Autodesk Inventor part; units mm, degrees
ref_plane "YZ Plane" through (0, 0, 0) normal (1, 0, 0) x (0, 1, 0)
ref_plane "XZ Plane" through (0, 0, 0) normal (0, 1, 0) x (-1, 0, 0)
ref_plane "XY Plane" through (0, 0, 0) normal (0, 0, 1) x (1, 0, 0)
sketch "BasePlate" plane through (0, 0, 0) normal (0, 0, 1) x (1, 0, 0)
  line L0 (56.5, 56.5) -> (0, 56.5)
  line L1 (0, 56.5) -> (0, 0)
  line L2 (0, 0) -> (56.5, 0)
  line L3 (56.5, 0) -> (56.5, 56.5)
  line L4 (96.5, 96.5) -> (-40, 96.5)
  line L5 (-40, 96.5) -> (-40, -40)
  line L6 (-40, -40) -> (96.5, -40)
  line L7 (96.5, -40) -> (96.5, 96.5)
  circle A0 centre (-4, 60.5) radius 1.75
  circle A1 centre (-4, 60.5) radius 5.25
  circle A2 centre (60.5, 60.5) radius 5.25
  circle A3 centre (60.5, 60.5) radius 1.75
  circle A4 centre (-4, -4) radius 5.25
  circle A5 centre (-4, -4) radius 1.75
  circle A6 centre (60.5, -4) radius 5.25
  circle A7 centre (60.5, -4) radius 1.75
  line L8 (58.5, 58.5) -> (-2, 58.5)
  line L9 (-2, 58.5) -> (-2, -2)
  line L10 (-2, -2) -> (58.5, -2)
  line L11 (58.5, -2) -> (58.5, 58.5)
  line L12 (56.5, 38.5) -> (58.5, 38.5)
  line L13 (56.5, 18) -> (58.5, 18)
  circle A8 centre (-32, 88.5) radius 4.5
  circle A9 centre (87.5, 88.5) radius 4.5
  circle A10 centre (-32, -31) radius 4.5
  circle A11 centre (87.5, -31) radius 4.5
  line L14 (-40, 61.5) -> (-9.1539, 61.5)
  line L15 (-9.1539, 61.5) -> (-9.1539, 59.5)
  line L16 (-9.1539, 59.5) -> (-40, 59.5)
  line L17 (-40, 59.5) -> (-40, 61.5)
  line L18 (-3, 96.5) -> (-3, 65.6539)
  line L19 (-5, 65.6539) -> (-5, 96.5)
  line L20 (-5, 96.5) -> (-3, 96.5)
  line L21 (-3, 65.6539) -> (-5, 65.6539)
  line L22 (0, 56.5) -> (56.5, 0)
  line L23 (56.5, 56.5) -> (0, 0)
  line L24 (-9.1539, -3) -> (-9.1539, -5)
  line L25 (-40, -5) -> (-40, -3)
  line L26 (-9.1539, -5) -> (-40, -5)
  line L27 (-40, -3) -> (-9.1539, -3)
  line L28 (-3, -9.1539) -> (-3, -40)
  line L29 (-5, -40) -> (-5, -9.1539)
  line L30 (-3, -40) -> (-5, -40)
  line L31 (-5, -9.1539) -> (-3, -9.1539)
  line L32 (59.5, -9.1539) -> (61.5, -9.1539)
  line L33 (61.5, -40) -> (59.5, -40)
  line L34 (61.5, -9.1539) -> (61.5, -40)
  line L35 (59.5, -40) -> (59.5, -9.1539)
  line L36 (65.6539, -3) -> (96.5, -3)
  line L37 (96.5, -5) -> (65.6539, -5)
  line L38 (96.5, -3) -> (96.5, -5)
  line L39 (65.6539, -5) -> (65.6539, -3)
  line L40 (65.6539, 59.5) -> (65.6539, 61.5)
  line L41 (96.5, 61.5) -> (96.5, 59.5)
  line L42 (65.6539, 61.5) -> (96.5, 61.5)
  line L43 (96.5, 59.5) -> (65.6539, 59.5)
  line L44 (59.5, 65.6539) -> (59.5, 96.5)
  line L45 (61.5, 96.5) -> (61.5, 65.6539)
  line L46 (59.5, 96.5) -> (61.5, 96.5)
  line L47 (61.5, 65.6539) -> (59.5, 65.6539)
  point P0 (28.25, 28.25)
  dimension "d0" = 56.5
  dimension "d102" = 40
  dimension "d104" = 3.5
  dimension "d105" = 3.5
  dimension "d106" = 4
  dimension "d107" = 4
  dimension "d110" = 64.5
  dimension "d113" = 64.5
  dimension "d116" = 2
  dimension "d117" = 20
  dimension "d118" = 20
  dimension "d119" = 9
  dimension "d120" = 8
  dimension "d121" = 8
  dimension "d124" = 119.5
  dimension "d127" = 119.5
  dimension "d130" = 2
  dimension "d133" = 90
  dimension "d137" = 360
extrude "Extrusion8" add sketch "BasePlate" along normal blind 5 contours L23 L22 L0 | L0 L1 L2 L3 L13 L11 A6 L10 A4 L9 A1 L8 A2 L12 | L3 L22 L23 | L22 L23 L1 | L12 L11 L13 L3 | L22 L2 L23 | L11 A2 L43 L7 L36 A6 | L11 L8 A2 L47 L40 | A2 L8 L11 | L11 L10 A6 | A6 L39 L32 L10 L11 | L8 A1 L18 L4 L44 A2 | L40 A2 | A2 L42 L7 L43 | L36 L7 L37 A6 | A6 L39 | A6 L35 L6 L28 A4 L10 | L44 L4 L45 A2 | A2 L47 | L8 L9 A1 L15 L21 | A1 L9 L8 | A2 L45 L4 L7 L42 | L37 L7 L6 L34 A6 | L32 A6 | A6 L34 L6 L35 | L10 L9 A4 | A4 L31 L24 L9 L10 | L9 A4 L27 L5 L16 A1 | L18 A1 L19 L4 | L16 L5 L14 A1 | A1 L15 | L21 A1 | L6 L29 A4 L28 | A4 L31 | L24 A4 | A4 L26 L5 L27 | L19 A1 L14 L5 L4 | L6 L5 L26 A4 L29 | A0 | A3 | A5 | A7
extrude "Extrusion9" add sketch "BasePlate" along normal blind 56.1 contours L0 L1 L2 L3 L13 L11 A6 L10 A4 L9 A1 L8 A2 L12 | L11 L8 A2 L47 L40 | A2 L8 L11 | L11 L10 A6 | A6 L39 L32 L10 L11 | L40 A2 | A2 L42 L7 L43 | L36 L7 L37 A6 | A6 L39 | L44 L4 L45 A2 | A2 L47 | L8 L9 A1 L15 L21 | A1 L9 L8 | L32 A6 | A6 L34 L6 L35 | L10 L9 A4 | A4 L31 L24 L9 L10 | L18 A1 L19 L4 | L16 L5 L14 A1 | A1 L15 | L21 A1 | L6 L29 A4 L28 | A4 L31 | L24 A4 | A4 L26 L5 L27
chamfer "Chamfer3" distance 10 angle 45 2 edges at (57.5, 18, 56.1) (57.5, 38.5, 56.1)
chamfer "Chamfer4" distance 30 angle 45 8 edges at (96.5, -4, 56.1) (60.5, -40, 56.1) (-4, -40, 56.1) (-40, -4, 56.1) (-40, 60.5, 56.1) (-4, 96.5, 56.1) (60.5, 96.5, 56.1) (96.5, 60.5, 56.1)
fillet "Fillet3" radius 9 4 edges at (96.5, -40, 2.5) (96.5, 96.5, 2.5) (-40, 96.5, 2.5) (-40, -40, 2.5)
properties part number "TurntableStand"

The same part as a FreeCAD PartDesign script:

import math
import FreeCAD as App
import Part
import Sketcher

V = App.Vector


def edges_at(feature, points):
    """Names of the edges that pass closest to the given points."""
    edges = feature.Shape.Edges
    near = lambda p: min(range(len(edges)), key=lambda i: edges[i].distToShape(Part.Vertex(*p))[0])
    return sorted({f"Edge{near(p) + 1}" for p in points})


def add_polygon(sketch, points):
    """Adds a closed chain of lines whose ends are joined by coincident constraints."""
    first, n = sketch.GeometryCount, len(points)
    for a, b in zip(points, points[1:] + points[:1]):
        sketch.addGeometry(Part.LineSegment(App.Vector(*a, 0), App.Vector(*b, 0)), False)
    for i in range(n):
        sketch.addConstraint(Sketcher.Constraint("Coincident", first + i, 2, first + (i + 1) % n, 1))

doc = App.newDocument("Part")
body = doc.addObject("PartDesign::Body", "Body")

sketch1 = body.newObject("Sketcher::SketchObject", "Sketch")
sketch1.AttachmentSupport = (doc.getObject("XY_Plane"), [""])
sketch1.MapMode = "FlatFace"
add_polygon(sketch1, [(96.5, 96.5), (-40, 96.5), (-40, -40), (96.5, -40)])
sketch1.addGeometry(Part.Circle(V(87.5, 88.5, 0), V(0, 0, 1), 4.5), False)
sketch1.addGeometry(Part.Circle(V(87.5, -31, 0), V(0, 0, 1), 4.5), False)
sketch1.addGeometry(Part.Circle(V(-32, -31, 0), V(0, 0, 1), 4.5), False)
sketch1.addGeometry(Part.Circle(V(-32, 88.5, 0), V(0, 0, 1), 4.5), False)
sketch1.addConstraint(Sketcher.Constraint("Horizontal", 0))
sketch1.addConstraint(Sketcher.Constraint("Vertical", 1))
sketch1.addConstraint(Sketcher.Constraint("Horizontal", 2))
sketch1.addConstraint(Sketcher.Constraint("Vertical", 3))
sketch1.addConstraint(Sketcher.Constraint("Equal", 4, 5))
sketch1.addConstraint(Sketcher.Constraint("Equal", 5, 6))
sketch1.addConstraint(Sketcher.Constraint("Equal", 6, 7))
sketch1.addConstraint(Sketcher.Constraint("Horizontal", 5, 3, 6, 3))
sketch1.addConstraint(Sketcher.Constraint("Horizontal", 4, 3, 7, 3))
sketch1.addConstraint(Sketcher.Constraint("Vertical", 4, 3, 5, 3))
sketch1.addConstraint(Sketcher.Constraint("Vertical", 6, 3, 7, 3))
sketch1.addConstraint(Sketcher.Constraint("Equal", 2, 1))
sketch1.addConstraint(Sketcher.Constraint("Diameter", 4, 9.0))
sketch1.addConstraint(Sketcher.Constraint("DistanceX", 0, 2, -1, 1, 40.0))
sketch1.addConstraint(Sketcher.Constraint("DistanceY", 1, 2, -1, 1, 40.0))
sketch1.addConstraint(Sketcher.Constraint("DistanceX", 0, 2, 7, 3, 8.0))
sketch1.addConstraint(Sketcher.Constraint("DistanceY", 7, 3, 0, 2, 8.0))
sketch1.addConstraint(Sketcher.Constraint("DistanceY", 1, 2, 6, 3, 9.0))
sketch1.addConstraint(Sketcher.Constraint("DistanceX", 5, 3, 2, 2, 9.0))
sketch1.addConstraint(Sketcher.Constraint("DistanceY", 5, 3, 4, 3, 119.5))
pad1 = body.newObject("PartDesign::Pad", "Pad")
pad1.Profile = sketch1
pad1.Length = 5

sketch2 = body.newObject("Sketcher::SketchObject", "Sketch001")
sketch2.AttachmentSupport = (doc.getObject("XY_Plane"), [""])
sketch2.MapMode = "FlatFace"
sketch2.addGeometry(Part.LineSegment(V(0, 56.5, 0), V(56.5, 56.5, 0)), False)
sketch2.addGeometry(Part.LineSegment(V(56.5, 56.5, 0), V(56.5, 38.5, 0)), False)
sketch2.addGeometry(Part.LineSegment(V(56.5, 38.5, 0), V(58.5, 38.5, 0)), False)
sketch2.addGeometry(Part.LineSegment(V(58.5, 38.5, 0), V(58.5, 55.6, 0)), False)
sketch2.addGeometry(Part.ArcOfCircle(Part.Circle(V(60.5, 60.5, 0), V(0, 0, 1), 5.2), math.radians(-112), math.radians(-11)), False)
sketch2.addGeometry(Part.LineSegment(V(65.7, 59.5, 0), V(96.5, 59.5, 0)), False)
sketch2.addGeometry(Part.LineSegment(V(96.5, 59.5, 0), V(96.5, 61.5, 0)), False)
sketch2.addGeometry(Part.LineSegment(V(96.5, 61.5, 0), V(65.7, 61.5, 0)), False)
sketch2.addGeometry(Part.ArcOfCircle(Part.Circle(V(60.5, 60.5, 0), V(0, 0, 1), 5.2), math.radians(11), math.radians(79)), False)
sketch2.addGeometry(Part.LineSegment(V(61.5, 65.7, 0), V(61.5, 96.5, 0)), False)
sketch2.addGeometry(Part.LineSegment(V(61.5, 96.5, 0), V(59.5, 96.5, 0)), False)
sketch2.addGeometry(Part.LineSegment(V(59.5, 96.5, 0), V(59.5, 65.7, 0)), False)
sketch2.addGeometry(Part.ArcOfCircle(Part.Circle(V(60.5, 60.5, 0), V(0, 0, 1), 5.2), math.radians(101), math.radians(202)), False)
sketch2.addGeometry(Part.LineSegment(V(55.6, 58.5, 0), V(0.9, 58.5, 0)), False)
sketch2.addGeometry(Part.ArcOfCircle(Part.Circle(V(-4, 60.5, 0), V(0, 0, 1), 5.2), math.radians(-22), math.radians(79)), False)
sketch2.addGeometry(Part.LineSegment(V(-3, 65.7, 0), V(-3, 96.5, 0)), False)
sketch2.addGeometry(Part.LineSegment(V(-3, 96.5, 0), V(-5, 96.5, 0)), False)
sketch2.addGeometry(Part.LineSegment(V(-5, 96.5, 0), V(-5, 65.7, 0)), False)
sketch2.addGeometry(Part.ArcOfCircle(Part.Circle(V(-4, 60.5, 0), V(0, 0, 1), 5.2), math.radians(101), math.radians(169)), False)
sketch2.addGeometry(Part.LineSegment(V(-9.2, 61.5, 0), V(-40, 61.5, 0)), False)
sketch2.addGeometry(Part.LineSegment(V(-40, 61.5, 0), V(-40, 59.5, 0)), False)
sketch2.addGeometry(Part.LineSegment(V(-40, 59.5, 0), V(-9.2, 59.5, 0)), False)
sketch2.addGeometry(Part.ArcOfCircle(Part.Circle(V(-4, 60.5, 0), V(0, 0, 1), 5.2), math.radians(-169), math.radians(-68)), False)
sketch2.addGeometry(Part.LineSegment(V(-2, 55.6, 0), V(-2, 0.9, 0)), False)
sketch2.addGeometry(Part.ArcOfCircle(Part.Circle(V(-4, -4, 0), V(0, 0, 1), 5.2), math.radians(68), math.radians(169)), False)
sketch2.addGeometry(Part.LineSegment(V(-9.2, -3, 0), V(-40, -3, 0)), False)
sketch2.addGeometry(Part.LineSegment(V(-40, -3, 0), V(-40, -5, 0)), False)
sketch2.addGeometry(Part.LineSegment(V(-40, -5, 0), V(-9.2, -5, 0)), False)
sketch2.addGeometry(Part.ArcOfCircle(Part.Circle(V(-4, -4, 0), V(0, 0, 1), 5.2), math.radians(-169), math.radians(-101)), False)
sketch2.addGeometry(Part.LineSegment(V(-5, -9.2, 0), V(-5, -40, 0)), False)
sketch2.addGeometry(Part.LineSegment(V(-5, -40, 0), V(-3, -40, 0)), False)
sketch2.addGeometry(Part.LineSegment(V(-3, -40, 0), V(-3, -9.2, 0)), False)
sketch2.addGeometry(Part.ArcOfCircle(Part.Circle(V(-4, -4, 0), V(0, 0, 1), 5.2), math.radians(-79), math.radians(22)), False)
sketch2.addGeometry(Part.LineSegment(V(0.9, -2, 0), V(55.6, -2, 0)), False)
sketch2.addGeometry(Part.ArcOfCircle(Part.Circle(V(60.5, -4, 0), V(0, 0, 1), 5.2), math.radians(158), math.radians(259)), False)
sketch2.addGeometry(Part.LineSegment(V(59.5, -9.2, 0), V(59.5, -40, 0)), False)
sketch2.addGeometry(Part.LineSegment(V(59.5, -40, 0), V(61.5, -40, 0)), False)
sketch2.addGeometry(Part.LineSegment(V(61.5, -40, 0), V(61.5, -9.2, 0)), False)
sketch2.addGeometry(Part.ArcOfCircle(Part.Circle(V(60.5, -4, 0), V(0, 0, 1), 5.2), math.radians(-79), math.radians(-11)), False)
sketch2.addGeometry(Part.LineSegment(V(65.7, -5, 0), V(96.5, -5, 0)), False)
sketch2.addGeometry(Part.LineSegment(V(96.5, -5, 0), V(96.5, -3, 0)), False)
sketch2.addGeometry(Part.LineSegment(V(96.5, -3, 0), V(65.7, -3, 0)), False)
sketch2.addGeometry(Part.ArcOfCircle(Part.Circle(V(60.5, -4, 0), V(0, 0, 1), 5.2), math.radians(11), math.radians(112)), False)
sketch2.addGeometry(Part.LineSegment(V(58.5, 0.9, 0), V(58.5, 18, 0)), False)
sketch2.addGeometry(Part.LineSegment(V(58.5, 18, 0), V(56.5, 18, 0)), False)
sketch2.addGeometry(Part.LineSegment(V(56.5, 18, 0), V(56.5, 0, 0)), False)
sketch2.addGeometry(Part.LineSegment(V(56.5, 0, 0), V(0, 0, 0)), False)
sketch2.addGeometry(Part.LineSegment(V(0, 0, 0), V(0, 56.5, 0)), False)
sketch2.addGeometry(Part.Circle(V(60.5, -4, 0), V(0, 0, 1), 1.8), False)
sketch2.addGeometry(Part.Circle(V(-4, -4, 0), V(0, 0, 1), 1.8), False)
sketch2.addGeometry(Part.Circle(V(-4, 60.5, 0), V(0, 0, 1), 1.8), False)
sketch2.addGeometry(Part.Circle(V(60.5, 60.5, 0), V(0, 0, 1), 1.8), False)
sketch2.addConstraint(Sketcher.Constraint("Coincident", 0, 2, 1, 1))
sketch2.addConstraint(Sketcher.Constraint("Coincident", 1, 2, 2, 1))
sketch2.addConstraint(Sketcher.Constraint("Coincident", 2, 2, 3, 1))
sketch2.addConstraint(Sketcher.Constraint("Coincident", 3, 2, 4, 1))
sketch2.addConstraint(Sketcher.Constraint("Coincident", 4, 2, 5, 1))
sketch2.addConstraint(Sketcher.Constraint("Coincident", 5, 2, 6, 1))
sketch2.addConstraint(Sketcher.Constraint("Coincident", 6, 2, 7, 1))
sketch2.addConstraint(Sketcher.Constraint("Coincident", 7, 2, 8, 1))
sketch2.addConstraint(Sketcher.Constraint("Coincident", 8, 2, 9, 1))
sketch2.addConstraint(Sketcher.Constraint("Coincident", 9, 2, 10, 1))
sketch2.addConstraint(Sketcher.Constraint("Coincident", 10, 2, 11, 1))
sketch2.addConstraint(Sketcher.Constraint("Coincident", 11, 2, 12, 1))
sketch2.addConstraint(Sketcher.Constraint("Coincident", 12, 2, 13, 1))
sketch2.addConstraint(Sketcher.Constraint("Coincident", 13, 2, 14, 1))
sketch2.addConstraint(Sketcher.Constraint("Coincident", 14, 2, 15, 1))
sketch2.addConstraint(Sketcher.Constraint("Coincident", 15, 2, 16, 1))
sketch2.addConstraint(Sketcher.Constraint("Coincident", 16, 2, 17, 1))
sketch2.addConstraint(Sketcher.Constraint("Coincident", 17, 2, 18, 1))
sketch2.addConstraint(Sketcher.Constraint("Coincident", 18, 2, 19, 1))
sketch2.addConstraint(Sketcher.Constraint("Coincident", 19, 2, 20, 1))
sketch2.addConstraint(Sketcher.Constraint("Coincident", 20, 2, 21, 1))
sketch2.addConstraint(Sketcher.Constraint("Coincident", 21, 2, 22, 1))
sketch2.addConstraint(Sketcher.Constraint("Coincident", 22, 2, 23, 1))
sketch2.addConstraint(Sketcher.Constraint("Coincident", 23, 2, 24, 1))
sketch2.addConstraint(Sketcher.Constraint("Coincident", 24, 2, 25, 1))
sketch2.addConstraint(Sketcher.Constraint("Coincident", 25, 2, 26, 1))
sketch2.addConstraint(Sketcher.Constraint("Coincident", 26, 2, 27, 1))
sketch2.addConstraint(Sketcher.Constraint("Coincident", 27, 2, 28, 1))
sketch2.addConstraint(Sketcher.Constraint("Coincident", 28, 2, 29, 1))
sketch2.addConstraint(Sketcher.Constraint("Coincident", 29, 2, 30, 1))
sketch2.addConstraint(Sketcher.Constraint("Coincident", 30, 2, 31, 1))
sketch2.addConstraint(Sketcher.Constraint("Coincident", 31, 2, 32, 1))
sketch2.addConstraint(Sketcher.Constraint("Coincident", 32, 2, 33, 1))
sketch2.addConstraint(Sketcher.Constraint("Coincident", 33, 2, 34, 1))
sketch2.addConstraint(Sketcher.Constraint("Coincident", 34, 2, 35, 1))
sketch2.addConstraint(Sketcher.Constraint("Coincident", 35, 2, 36, 1))
sketch2.addConstraint(Sketcher.Constraint("Coincident", 36, 2, 37, 1))
sketch2.addConstraint(Sketcher.Constraint("Coincident", 37, 2, 38, 1))
sketch2.addConstraint(Sketcher.Constraint("Coincident", 38, 2, 39, 1))
sketch2.addConstraint(Sketcher.Constraint("Coincident", 39, 2, 40, 1))
sketch2.addConstraint(Sketcher.Constraint("Coincident", 40, 2, 41, 1))
sketch2.addConstraint(Sketcher.Constraint("Coincident", 41, 2, 42, 1))
sketch2.addConstraint(Sketcher.Constraint("Coincident", 42, 2, 43, 1))
sketch2.addConstraint(Sketcher.Constraint("Coincident", 43, 2, 44, 1))
sketch2.addConstraint(Sketcher.Constraint("Coincident", 44, 2, 45, 1))
sketch2.addConstraint(Sketcher.Constraint("Coincident", 45, 2, 46, 1))
sketch2.addConstraint(Sketcher.Constraint("Coincident", 46, 2, 47, 1))
sketch2.addConstraint(Sketcher.Constraint("Coincident", 47, 2, 0, 1))
sketch2.addConstraint(Sketcher.Constraint("Horizontal", 0))
sketch2.addConstraint(Sketcher.Constraint("Vertical", 1))
sketch2.addConstraint(Sketcher.Constraint("Horizontal", 2))
sketch2.addConstraint(Sketcher.Constraint("Vertical", 3))
sketch2.addConstraint(Sketcher.Constraint("Horizontal", 5))
sketch2.addConstraint(Sketcher.Constraint("Vertical", 6))
sketch2.addConstraint(Sketcher.Constraint("Horizontal", 7))
sketch2.addConstraint(Sketcher.Constraint("Vertical", 9))
sketch2.addConstraint(Sketcher.Constraint("Horizontal", 10))
sketch2.addConstraint(Sketcher.Constraint("Vertical", 11))
sketch2.addConstraint(Sketcher.Constraint("Horizontal", 13))
sketch2.addConstraint(Sketcher.Constraint("Vertical", 15))
sketch2.addConstraint(Sketcher.Constraint("Horizontal", 16))
sketch2.addConstraint(Sketcher.Constraint("Vertical", 17))
sketch2.addConstraint(Sketcher.Constraint("Horizontal", 19))
sketch2.addConstraint(Sketcher.Constraint("Vertical", 20))
sketch2.addConstraint(Sketcher.Constraint("Horizontal", 21))
sketch2.addConstraint(Sketcher.Constraint("Vertical", 23))
sketch2.addConstraint(Sketcher.Constraint("Horizontal", 25))
sketch2.addConstraint(Sketcher.Constraint("Vertical", 26))
sketch2.addConstraint(Sketcher.Constraint("Horizontal", 27))
sketch2.addConstraint(Sketcher.Constraint("Vertical", 29))
sketch2.addConstraint(Sketcher.Constraint("Horizontal", 30))
sketch2.addConstraint(Sketcher.Constraint("Vertical", 31))
sketch2.addConstraint(Sketcher.Constraint("Horizontal", 33))
sketch2.addConstraint(Sketcher.Constraint("Vertical", 35))
sketch2.addConstraint(Sketcher.Constraint("Horizontal", 36))
sketch2.addConstraint(Sketcher.Constraint("Vertical", 37))
sketch2.addConstraint(Sketcher.Constraint("Horizontal", 39))
sketch2.addConstraint(Sketcher.Constraint("Vertical", 40))
sketch2.addConstraint(Sketcher.Constraint("Horizontal", 41))
sketch2.addConstraint(Sketcher.Constraint("Vertical", 43))
sketch2.addConstraint(Sketcher.Constraint("Horizontal", 44))
sketch2.addConstraint(Sketcher.Constraint("Vertical", 45))
sketch2.addConstraint(Sketcher.Constraint("Horizontal", 46))
sketch2.addConstraint(Sketcher.Constraint("Vertical", 47))
sketch2.addConstraint(Sketcher.Constraint("Coincident", 46, 2, -1, 1))
sketch2.addConstraint(Sketcher.Constraint("Coincident", 8, 3, 4, 3))
sketch2.addConstraint(Sketcher.Constraint("Coincident", 12, 3, 4, 3))
sketch2.addConstraint(Sketcher.Constraint("Coincident", 18, 3, 14, 3))
sketch2.addConstraint(Sketcher.Constraint("Coincident", 22, 3, 14, 3))
sketch2.addConstraint(Sketcher.Constraint("Coincident", 28, 3, 24, 3))
sketch2.addConstraint(Sketcher.Constraint("Coincident", 32, 3, 24, 3))
sketch2.addConstraint(Sketcher.Constraint("Coincident", 38, 3, 34, 3))
sketch2.addConstraint(Sketcher.Constraint("Coincident", 42, 3, 34, 3))
sketch2.addConstraint(Sketcher.Constraint("Coincident", 48, 3, 34, 3))
sketch2.addConstraint(Sketcher.Constraint("Coincident", 49, 3, 24, 3))
sketch2.addConstraint(Sketcher.Constraint("Coincident", 50, 3, 14, 3))
sketch2.addConstraint(Sketcher.Constraint("Coincident", 51, 3, 4, 3))
sketch2.addConstraint(Sketcher.Constraint("Equal", 4, 8))
sketch2.addConstraint(Sketcher.Constraint("Equal", 8, 12))
sketch2.addConstraint(Sketcher.Constraint("Equal", 12, 14))
sketch2.addConstraint(Sketcher.Constraint("Equal", 14, 18))
sketch2.addConstraint(Sketcher.Constraint("Equal", 18, 22))
sketch2.addConstraint(Sketcher.Constraint("Equal", 22, 24))
sketch2.addConstraint(Sketcher.Constraint("Equal", 24, 28))
sketch2.addConstraint(Sketcher.Constraint("Equal", 28, 32))
sketch2.addConstraint(Sketcher.Constraint("Equal", 32, 34))
sketch2.addConstraint(Sketcher.Constraint("Equal", 34, 38))
sketch2.addConstraint(Sketcher.Constraint("Equal", 38, 42))
sketch2.addConstraint(Sketcher.Constraint("Equal", 48, 49))
sketch2.addConstraint(Sketcher.Constraint("Equal", 49, 50))
sketch2.addConstraint(Sketcher.Constraint("Equal", 50, 51))
sketch2.addConstraint(Sketcher.Constraint("Horizontal", 12, 3, 14, 3))
sketch2.addConstraint(Sketcher.Constraint("Horizontal", 32, 3, 34, 3))
sketch2.addConstraint(Sketcher.Constraint("Horizontal", 8, 2, 11, 2))
sketch2.addConstraint(Sketcher.Constraint("Horizontal", 11, 2, 14, 2))
sketch2.addConstraint(Sketcher.Constraint("Horizontal", 10, 2, 15, 2))
sketch2.addConstraint(Sketcher.Constraint("Horizontal", 14, 2, 17, 2))
sketch2.addConstraint(Sketcher.Constraint("Horizontal", 7, 2, 18, 2))
sketch2.addConstraint(Sketcher.Constraint("Horizontal", 5, 2, 20, 2))
sketch2.addConstraint(Sketcher.Constraint("Horizontal", 3, 2, 22, 2))
sketch2.addConstraint(Sketcher.Constraint("Horizontal", 28, 2, 31, 2))
sketch2.addConstraint(Sketcher.Constraint("Horizontal", 31, 2, 34, 2))
sketch2.addConstraint(Sketcher.Constraint("Horizontal", 30, 2, 35, 2))
sketch2.addConstraint(Sketcher.Constraint("Horizontal", 34, 2, 37, 2))
sketch2.addConstraint(Sketcher.Constraint("Horizontal", 27, 2, 38, 2))
sketch2.addConstraint(Sketcher.Constraint("Horizontal", 25, 2, 40, 2))
sketch2.addConstraint(Sketcher.Constraint("Horizontal", 23, 2, 42, 2))
sketch2.addConstraint(Sketcher.Constraint("Vertical", 22, 3, 24, 3))
sketch2.addConstraint(Sketcher.Constraint("Vertical", 12, 3, 34, 3))
sketch2.addConstraint(Sketcher.Constraint("Vertical", 4, 2, 7, 2))
sketch2.addConstraint(Sketcher.Constraint("Vertical", 21, 2, 24, 2))
sketch2.addConstraint(Sketcher.Constraint("Vertical", 20, 2, 25, 2))
sketch2.addConstraint(Sketcher.Constraint("Vertical", 24, 2, 27, 2))
sketch2.addConstraint(Sketcher.Constraint("Vertical", 17, 2, 28, 2))
sketch2.addConstraint(Sketcher.Constraint("Vertical", 13, 2, 32, 2))
sketch2.addConstraint(Sketcher.Constraint("Vertical", 6, 2, 39, 2))
sketch2.addConstraint(Sketcher.Constraint("Vertical", 1, 2, 44, 2))
sketch2.addConstraint(Sketcher.Constraint("Equal", 2, 10))
sketch2.addConstraint(Sketcher.Constraint("Equal", 7, 19))
sketch2.addConstraint(Sketcher.Constraint("Equal", 44, 6))
sketch2.addConstraint(Sketcher.Constraint("Equal", 41, 9))
sketch2.addConstraint(Sketcher.Constraint("Equal", 33, 23))
sketch2.addConstraint(Sketcher.Constraint("Equal", 17, 29))
sketch2.addConstraint(Sketcher.Constraint("Equal", 3, 43))
sketch2.addConstraint(Sketcher.Constraint("Equal", 1, 45))
sketch2.addConstraint(Sketcher.Constraint("Equal", 46, 47))
sketch2.addConstraint(Sketcher.Constraint("Diameter", 48, 3.5))
sketch2.addConstraint(Sketcher.Constraint("DistanceX", 2, 1, 2, 2, 2.0))
sketch2.addConstraint(Sketcher.Constraint("DistanceX", 0, 1, 0, 2, 56.5))
sketch2.addConstraint(Sketcher.Constraint("DistanceX", 14, 3, -1, 1, 4.0))
sketch2.addConstraint(Sketcher.Constraint("DistanceY", 24, 3, -1, 1, 4.0))
sketch2.addConstraint(Sketcher.Constraint("DistanceX", 19, 2, -1, 1, 40.0))
sketch2.addConstraint(Sketcher.Constraint("DistanceX", 22, 2, -1, 1, 2.0))
sketch2.addConstraint(Sketcher.Constraint("DistanceY", 1, 2, 1, 1, 18.0))
sketch2.addConstraint(Sketcher.Constraint("Radius", 4, 5.25))
pad2 = body.newObject("PartDesign::Pad", "Pad001")
pad2.Profile = sketch2
pad2.Length = 56.1
doc.recompute()

chamfer = body.newObject("PartDesign::Chamfer", "Chamfer")
chamfer.Base = (pad2, edges_at(pad2, [(57.5, 18, 56.1), (57.5, 38.5, 56.1)]))
chamfer.Size = 10
doc.recompute()

chamfer2 = body.newObject("PartDesign::Chamfer", "Chamfer001")
chamfer2.Base = (chamfer, edges_at(chamfer, [
    (96.5, -4, 56.1),
    (60.5, -40, 56.1),
    (-4, -40, 56.1),
    (-40, -4, 56.1),
    (-40, 60.5, 56.1),
    (-4, 96.5, 56.1),
    (60.5, 96.5, 56.1),
    (96.5, 60.5, 56.1),
]))
chamfer2.Size = 30
doc.recompute()

fillet = body.newObject("PartDesign::Fillet", "Fillet")
fillet.Base = (chamfer2, edges_at(chamfer2, [
    (96.5, -40, 2.5),
    (96.5, 96.5, 2.5),
    (-40, 96.5, 2.5),
    (-40, -40, 2.5),
]))
fillet.Radius = 9

doc.recompute()
